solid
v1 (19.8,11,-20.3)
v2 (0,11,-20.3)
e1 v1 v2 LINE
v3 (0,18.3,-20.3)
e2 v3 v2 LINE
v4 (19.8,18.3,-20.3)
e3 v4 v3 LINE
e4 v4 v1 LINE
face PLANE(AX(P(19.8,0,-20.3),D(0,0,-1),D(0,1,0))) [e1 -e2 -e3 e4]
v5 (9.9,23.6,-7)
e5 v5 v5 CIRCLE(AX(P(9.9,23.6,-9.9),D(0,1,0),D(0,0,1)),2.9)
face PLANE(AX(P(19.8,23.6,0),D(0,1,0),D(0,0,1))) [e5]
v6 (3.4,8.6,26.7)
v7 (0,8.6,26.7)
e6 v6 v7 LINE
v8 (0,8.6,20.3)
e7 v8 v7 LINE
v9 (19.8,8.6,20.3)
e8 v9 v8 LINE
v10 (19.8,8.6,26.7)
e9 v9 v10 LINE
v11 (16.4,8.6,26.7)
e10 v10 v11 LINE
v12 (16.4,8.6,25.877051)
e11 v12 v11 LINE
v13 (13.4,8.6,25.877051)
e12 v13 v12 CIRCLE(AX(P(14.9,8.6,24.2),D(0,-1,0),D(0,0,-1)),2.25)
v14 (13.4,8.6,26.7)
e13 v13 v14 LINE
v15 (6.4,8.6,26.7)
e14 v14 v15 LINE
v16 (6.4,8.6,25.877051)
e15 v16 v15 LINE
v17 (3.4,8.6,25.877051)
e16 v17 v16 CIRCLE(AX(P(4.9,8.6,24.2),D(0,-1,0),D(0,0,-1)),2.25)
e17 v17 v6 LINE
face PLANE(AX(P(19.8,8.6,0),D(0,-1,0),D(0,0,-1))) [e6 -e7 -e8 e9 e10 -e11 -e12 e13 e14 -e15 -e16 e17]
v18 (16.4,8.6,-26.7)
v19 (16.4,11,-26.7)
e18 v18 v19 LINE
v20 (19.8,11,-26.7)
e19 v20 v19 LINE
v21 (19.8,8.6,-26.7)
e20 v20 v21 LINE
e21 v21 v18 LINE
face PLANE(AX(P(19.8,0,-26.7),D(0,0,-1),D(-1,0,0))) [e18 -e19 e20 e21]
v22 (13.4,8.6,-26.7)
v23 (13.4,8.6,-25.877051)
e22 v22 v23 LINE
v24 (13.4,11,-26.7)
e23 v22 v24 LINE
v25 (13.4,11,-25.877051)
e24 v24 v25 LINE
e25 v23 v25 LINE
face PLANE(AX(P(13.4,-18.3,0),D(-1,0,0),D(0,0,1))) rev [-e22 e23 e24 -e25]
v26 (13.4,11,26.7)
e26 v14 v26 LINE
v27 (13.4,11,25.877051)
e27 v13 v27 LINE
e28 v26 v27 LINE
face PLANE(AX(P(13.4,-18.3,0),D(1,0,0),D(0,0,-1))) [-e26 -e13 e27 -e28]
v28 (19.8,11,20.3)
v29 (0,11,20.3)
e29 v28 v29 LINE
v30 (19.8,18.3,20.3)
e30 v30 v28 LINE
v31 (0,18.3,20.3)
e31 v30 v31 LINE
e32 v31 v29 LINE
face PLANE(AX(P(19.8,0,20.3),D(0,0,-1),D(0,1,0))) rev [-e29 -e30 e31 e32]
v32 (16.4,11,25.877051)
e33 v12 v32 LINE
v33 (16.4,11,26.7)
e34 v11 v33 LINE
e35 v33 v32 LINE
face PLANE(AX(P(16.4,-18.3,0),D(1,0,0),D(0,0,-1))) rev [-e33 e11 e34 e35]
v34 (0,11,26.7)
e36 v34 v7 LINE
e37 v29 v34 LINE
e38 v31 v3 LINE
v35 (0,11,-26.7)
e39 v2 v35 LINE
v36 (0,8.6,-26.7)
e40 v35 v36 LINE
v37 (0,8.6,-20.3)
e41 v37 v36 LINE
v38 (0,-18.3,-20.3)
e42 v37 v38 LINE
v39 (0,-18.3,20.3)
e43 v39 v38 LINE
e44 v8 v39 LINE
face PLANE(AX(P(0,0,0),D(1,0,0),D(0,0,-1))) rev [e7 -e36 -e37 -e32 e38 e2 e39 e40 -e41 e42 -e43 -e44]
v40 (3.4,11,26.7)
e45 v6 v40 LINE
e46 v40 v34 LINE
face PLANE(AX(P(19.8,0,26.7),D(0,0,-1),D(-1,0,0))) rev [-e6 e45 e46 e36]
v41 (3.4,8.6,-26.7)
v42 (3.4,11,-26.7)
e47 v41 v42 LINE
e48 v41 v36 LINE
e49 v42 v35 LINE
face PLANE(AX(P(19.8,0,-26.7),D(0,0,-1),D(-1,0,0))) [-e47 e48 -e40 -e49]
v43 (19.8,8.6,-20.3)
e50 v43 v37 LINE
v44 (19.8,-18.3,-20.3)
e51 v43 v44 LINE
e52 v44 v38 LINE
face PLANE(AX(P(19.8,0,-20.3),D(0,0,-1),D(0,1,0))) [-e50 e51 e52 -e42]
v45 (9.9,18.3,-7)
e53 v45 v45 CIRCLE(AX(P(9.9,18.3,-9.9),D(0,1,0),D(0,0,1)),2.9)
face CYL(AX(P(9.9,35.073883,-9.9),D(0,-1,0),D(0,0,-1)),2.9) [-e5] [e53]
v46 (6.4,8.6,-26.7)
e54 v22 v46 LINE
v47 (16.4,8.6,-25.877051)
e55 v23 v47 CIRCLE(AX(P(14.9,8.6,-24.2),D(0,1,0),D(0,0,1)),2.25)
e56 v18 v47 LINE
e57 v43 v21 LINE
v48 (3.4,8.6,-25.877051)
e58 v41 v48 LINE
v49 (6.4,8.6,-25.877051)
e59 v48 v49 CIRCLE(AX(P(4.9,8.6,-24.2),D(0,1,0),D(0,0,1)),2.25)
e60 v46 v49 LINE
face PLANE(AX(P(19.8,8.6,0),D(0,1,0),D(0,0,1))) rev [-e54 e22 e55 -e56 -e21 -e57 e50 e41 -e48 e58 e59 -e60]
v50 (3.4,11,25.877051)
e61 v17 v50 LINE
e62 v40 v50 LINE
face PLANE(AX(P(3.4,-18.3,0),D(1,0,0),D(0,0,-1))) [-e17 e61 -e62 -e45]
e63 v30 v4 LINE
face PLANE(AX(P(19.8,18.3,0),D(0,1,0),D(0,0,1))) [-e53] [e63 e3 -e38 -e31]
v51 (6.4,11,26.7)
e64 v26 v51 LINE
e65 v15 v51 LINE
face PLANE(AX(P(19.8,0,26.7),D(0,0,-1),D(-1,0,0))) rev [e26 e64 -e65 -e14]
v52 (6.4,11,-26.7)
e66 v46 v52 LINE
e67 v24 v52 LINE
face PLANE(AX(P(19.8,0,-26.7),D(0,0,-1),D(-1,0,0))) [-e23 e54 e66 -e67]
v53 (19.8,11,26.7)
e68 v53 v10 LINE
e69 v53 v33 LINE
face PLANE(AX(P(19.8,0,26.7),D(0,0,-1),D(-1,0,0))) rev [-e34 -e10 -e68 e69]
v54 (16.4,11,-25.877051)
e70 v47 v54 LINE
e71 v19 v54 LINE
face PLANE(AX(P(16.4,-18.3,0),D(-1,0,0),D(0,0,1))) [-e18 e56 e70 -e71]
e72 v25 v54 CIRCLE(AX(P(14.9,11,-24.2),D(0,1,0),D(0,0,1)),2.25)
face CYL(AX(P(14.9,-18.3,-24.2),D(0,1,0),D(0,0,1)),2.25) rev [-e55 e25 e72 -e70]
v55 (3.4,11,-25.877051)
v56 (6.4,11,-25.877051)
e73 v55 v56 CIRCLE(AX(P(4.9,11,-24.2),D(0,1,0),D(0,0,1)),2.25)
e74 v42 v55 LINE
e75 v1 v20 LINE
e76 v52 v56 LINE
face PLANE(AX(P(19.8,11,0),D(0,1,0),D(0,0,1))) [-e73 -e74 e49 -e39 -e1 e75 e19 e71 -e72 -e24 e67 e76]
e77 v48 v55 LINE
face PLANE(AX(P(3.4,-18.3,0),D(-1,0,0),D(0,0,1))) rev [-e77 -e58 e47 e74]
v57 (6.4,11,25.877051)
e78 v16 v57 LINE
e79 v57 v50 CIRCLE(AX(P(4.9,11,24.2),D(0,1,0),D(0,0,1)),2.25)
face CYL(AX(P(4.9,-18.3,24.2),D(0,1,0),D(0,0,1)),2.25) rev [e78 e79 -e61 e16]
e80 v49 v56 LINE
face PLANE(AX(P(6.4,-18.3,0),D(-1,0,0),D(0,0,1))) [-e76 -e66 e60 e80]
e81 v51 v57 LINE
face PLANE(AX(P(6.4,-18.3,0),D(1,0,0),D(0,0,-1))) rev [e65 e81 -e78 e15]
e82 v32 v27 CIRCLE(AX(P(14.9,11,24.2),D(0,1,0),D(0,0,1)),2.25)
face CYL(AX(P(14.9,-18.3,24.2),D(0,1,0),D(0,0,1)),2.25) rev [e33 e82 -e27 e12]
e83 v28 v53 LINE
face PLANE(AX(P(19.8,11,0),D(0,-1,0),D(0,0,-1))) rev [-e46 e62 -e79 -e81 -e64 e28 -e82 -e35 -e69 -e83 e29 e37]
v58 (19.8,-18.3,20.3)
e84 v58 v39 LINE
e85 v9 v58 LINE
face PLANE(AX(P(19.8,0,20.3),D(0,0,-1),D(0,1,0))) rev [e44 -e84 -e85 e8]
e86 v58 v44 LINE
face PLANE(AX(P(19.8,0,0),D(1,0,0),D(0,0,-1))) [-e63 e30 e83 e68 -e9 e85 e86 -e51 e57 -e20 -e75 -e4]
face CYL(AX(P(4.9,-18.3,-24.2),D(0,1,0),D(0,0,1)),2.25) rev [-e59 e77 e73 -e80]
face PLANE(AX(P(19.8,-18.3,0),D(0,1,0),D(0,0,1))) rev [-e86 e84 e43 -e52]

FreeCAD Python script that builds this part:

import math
import FreeCAD as App
import Part
import Sketcher
from FreeCAD import Vector


def add_polygon(sketch, points):
    """Adds a closed chain of lines whose ends are joined by coincident constraints."""
    first, n = sketch.GeometryCount, len(points)
    for a, b in zip(points, points[1:] + points[:1]):
        sketch.addGeometry(Part.LineSegment(App.Vector(*a, 0), App.Vector(*b, 0)), False)
    for i in range(n):
        sketch.addConstraint(Sketcher.Constraint("Coincident", first + i, 2, first + (i + 1) % n, 1))

doc = App.newDocument("Part")
body = doc.addObject("PartDesign::Body", "Body")

sketch1 = body.newObject("Sketcher::SketchObject", "Sketch")
sketch1.AttachmentSupport = (doc.getObject("YZ_Plane"), [""])
sketch1.MapMode = "FlatFace"
add_polygon(sketch1, [(8.6, 20.3), (-18.3, 20.3), (-18.3, -20.3), (8.6, -20.3), (8.6, -26.7), (11, -26.7), (11, -20.3), (18.3, -20.3), (18.3, -12.8), (23.6, -12.8), (23.6, -7), (18.3, -7), (18.3, 20.3), (11, 20.3), (11, 26.7), (8.6, 26.7)])
sketch1.addConstraint([
    Sketcher.Constraint("Horizontal", 0),
    Sketcher.Constraint("Vertical", 1),
    Sketcher.Constraint("Horizontal", 2),
    Sketcher.Constraint("Vertical", 3),
    Sketcher.Constraint("Horizontal", 4),
    Sketcher.Constraint("Vertical", 5),
    Sketcher.Constraint("Horizontal", 6),
    Sketcher.Constraint("Vertical", 7),
    Sketcher.Constraint("Horizontal", 8),
    Sketcher.Constraint("Vertical", 9),
    Sketcher.Constraint("Horizontal", 10),
    Sketcher.Constraint("Vertical", 11),
    Sketcher.Constraint("Horizontal", 12),
    Sketcher.Constraint("Vertical", 13),
    Sketcher.Constraint("Horizontal", 14),
    Sketcher.Constraint("Vertical", 15),
    Sketcher.Constraint("Symmetric", 0, 2, 6, 2, -1, 1),
    Sketcher.Constraint("Symmetric", 1, 2, 11, 2, -1, 1),
    Sketcher.Constraint("Symmetric", 5, 2, 12, 2, -1),
    Sketcher.Constraint("Symmetric", 3, 2, 14, 2, -1),
    Sketcher.Constraint("DistanceX", 0, 2, 0, 1, 26.9),
    Sketcher.Constraint("DistanceX", 4, 1, 4, 2, 2.4),
    Sketcher.Constraint("DistanceX", 6, 1, 6, 2, 7.3),
    Sketcher.Constraint("DistanceX", 8, 1, 8, 2, 5.3),
    Sketcher.Constraint("DistanceY", 1, 2, 1, 1, 40.6),
    Sketcher.Constraint("DistanceY", 3, 2, 3, 1, 6.4),
    Sketcher.Constraint("DistanceY", 7, 1, 7, 2, 7.5),
    Sketcher.Constraint("DistanceY", 9, 1, 9, 2, 5.8),
])
pad1 = body.newObject("PartDesign::Pad", "Pad")
pad1.Profile = sketch1
pad1.Length = 19.8

sketch2 = body.newObject("Sketcher::SketchObject", "Sketch001")
sketch2.AttachmentSupport = (doc.getObject("XZ_Plane"), [""])
sketch2.MapMode = "FlatFace"
sketch2.AttachmentOffset = App.Placement(Vector(0, 0, -18.3), App.Rotation())
sketch2.addGeometry([
    Part.LineSegment(Vector(9.9, -7, 0), Vector(19.8, -7, 0)),
    Part.LineSegment(Vector(19.8, -7, 0), Vector(19.8, -12.8, 0)),
    Part.LineSegment(Vector(19.8, -12.8, 0), Vector(9.9, -12.8, 0)),
    Part.ArcOfCircle(Part.Circle(Vector(9.9, -9.9, 0), Vector(0, 0, 1), 2.9), math.radians(-90), math.radians(0)),
    Part.ArcOfCircle(Part.Circle(Vector(9.9, -9.9, 0), Vector(0, 0, 1), 2.9), math.radians(0), math.radians(90)),
    Part.ArcOfCircle(Part.Circle(Vector(9.9, -9.9, 0), Vector(0, 0, 1), 2.9), math.radians(-180), math.radians(-90)),
    Part.LineSegment(Vector(9.9, -12.8, 0), Vector(0, -12.8, 0)),
    Part.LineSegment(Vector(0, -12.8, 0), Vector(0, -7, 0)),
    Part.LineSegment(Vector(0, -7, 0), Vector(9.9, -7, 0)),
    Part.ArcOfCircle(Part.Circle(Vector(9.9, -9.9, 0), Vector(0, 0, 1), 2.9), math.radians(90), math.radians(180)),
], False)
sketch2.addConstraint([
    Sketcher.Constraint("Coincident", 0, 2, 1, 1),
    Sketcher.Constraint("Coincident", 1, 2, 2, 1),
    Sketcher.Constraint("Tangent", 2, 2, 3, 1),
    Sketcher.Constraint("Tangent", 3, 2, 4, 1),
    Sketcher.Constraint("Tangent", 4, 2, 0, 1),
    Sketcher.Constraint("Tangent", 5, 2, 6, 1),
    Sketcher.Constraint("Coincident", 6, 2, 7, 1),
    Sketcher.Constraint("Coincident", 7, 2, 8, 1),
    Sketcher.Constraint("Tangent", 8, 2, 9, 1),
    Sketcher.Constraint("Tangent", 9, 2, 5, 1),
    Sketcher.Constraint("Horizontal", 0),
    Sketcher.Constraint("Vertical", 1),
    Sketcher.Constraint("Horizontal", 2),
    Sketcher.Constraint("Horizontal", 6),
    Sketcher.Constraint("Vertical", 7),
    Sketcher.Constraint("Horizontal", 8),
    Sketcher.Constraint("Coincident", 5, 3, 3, 3),
    Sketcher.Constraint("Coincident", 8, 2, 4, 2),
    Sketcher.Constraint("Equal", 3, 4),
    Sketcher.Constraint("PointOnObject", 6, 2, -2),
    Sketcher.Constraint("Horizontal", 9, 3, 3, 2),
    Sketcher.Constraint("Horizontal", 3, 2, 9, 2),
    Sketcher.Constraint("Equal", 2, 6),
    Sketcher.Constraint("Radius", 3, 2.9),
    Sketcher.Constraint("DistanceX", 0, 1, 0, 2, 9.9),
    Sketcher.Constraint("DistanceY", 0, 2, -1, 1, 7.0),
])
pocket1 = body.newObject("PartDesign::Pocket", "Pocket")
pocket1.Profile = sketch2
pocket1.Length = 5.3

sketch3 = body.newObject("Sketcher::SketchObject", "Sketch002")
sketch3.AttachmentSupport = (doc.getObject("XZ_Plane"), [""])
sketch3.MapMode = "FlatFace"
sketch3.AttachmentOffset = App.Placement(Vector(0, 0, -11), App.Rotation())
sketch3.addGeometry([
    Part.ArcOfCircle(Part.Circle(Vector(14.9, -24.2, 0), Vector(0, 0, 1), 2.2), math.radians(0), math.radians(228)),
    Part.ArcOfCircle(Part.Circle(Vector(14.9, -24.2, 0), Vector(0, 0, 1), 2.2), math.radians(-48), math.radians(0)),
    Part.LineSegment(Vector(16.4, -25.9, 0), Vector(16.4, -26.7, 0)),
    Part.LineSegment(Vector(16.4, -26.7, 0), Vector(13.4, -26.7, 0)),
    Part.LineSegment(Vector(13.4, -26.7, 0), Vector(13.4, -25.9, 0)),
    Part.ArcOfCircle(Part.Circle(Vector(4.9, -24.2, 0), Vector(0, 0, 1), 2.2), math.radians(-48), math.radians(0)),
    Part.LineSegment(Vector(6.4, -25.9, 0), Vector(6.4, -26.7, 0)),
    Part.LineSegment(Vector(6.4, -26.7, 0), Vector(3.4, -26.7, 0)),
    Part.LineSegment(Vector(3.4, -26.7, 0), Vector(3.4, -25.9, 0)),
    Part.ArcOfCircle(Part.Circle(Vector(4.9, -24.2, 0), Vector(0, 0, 1), 2.2), math.radians(0), math.radians(228)),
    Part.ArcOfCircle(Part.Circle(Vector(14.9, 24.2, 0), Vector(0, 0, 1), 2.2), math.radians(0), math.radians(48)),
    Part.ArcOfCircle(Part.Circle(Vector(14.9, 24.2, 0), Vector(0, 0, 1), 2.2), math.radians(132), math.radians(360)),
    Part.LineSegment(Vector(13.4, 25.9, 0), Vector(13.4, 26.7, 0)),
    Part.LineSegment(Vector(13.4, 26.7, 0), Vector(16.4, 26.7, 0)),
    Part.LineSegment(Vector(16.4, 26.7, 0), Vector(16.4, 25.9, 0)),
    Part.ArcOfCircle(Part.Circle(Vector(4.9, 24.2, 0), Vector(0, 0, 1), 2.2), math.radians(0), math.radians(48)),
    Part.ArcOfCircle(Part.Circle(Vector(4.9, 24.2, 0), Vector(0, 0, 1), 2.2), math.radians(132), math.radians(360)),
    Part.LineSegment(Vector(3.4, 25.9, 0), Vector(3.4, 26.7, 0)),
    Part.LineSegment(Vector(3.4, 26.7, 0), Vector(6.4, 26.7, 0)),
    Part.LineSegment(Vector(6.4, 26.7, 0), Vector(6.4, 25.9, 0)),
], False)
sketch3.addConstraint([
    Sketcher.Constraint("Tangent", 0, 1, 1, 2),
    Sketcher.Constraint("Coincident", 1, 1, 2, 1),
    Sketcher.Constraint("Coincident", 2, 2, 3, 1),
    Sketcher.Constraint("Coincident", 3, 2, 4, 1),
    Sketcher.Constraint("Coincident", 4, 2, 0, 2),
    Sketcher.Constraint("Coincident", 5, 1, 6, 1),
    Sketcher.Constraint("Coincident", 6, 2, 7, 1),
    Sketcher.Constraint("Coincident", 7, 2, 8, 1),
    Sketcher.Constraint("Coincident", 8, 2, 9, 2),
    Sketcher.Constraint("Tangent", 9, 1, 5, 2),
    Sketcher.Constraint("Tangent", 10, 1, 11, 2),
    Sketcher.Constraint("Coincident", 11, 1, 12, 1),
    Sketcher.Constraint("Coincident", 12, 2, 13, 1),
    Sketcher.Constraint("Coincident", 13, 2, 14, 1),
    Sketcher.Constraint("Coincident", 14, 2, 10, 2),
    Sketcher.Constraint("Tangent", 15, 1, 16, 2),
    Sketcher.Constraint("Coincident", 16, 1, 17, 1),
    Sketcher.Constraint("Coincident", 17, 2, 18, 1),
    Sketcher.Constraint("Coincident", 18, 2, 19, 1),
    Sketcher.Constraint("Coincident", 19, 2, 15, 2),
    Sketcher.Constraint("Vertical", 2),
    Sketcher.Constraint("Horizontal", 3),
    Sketcher.Constraint("Vertical", 4),
    Sketcher.Constraint("Vertical", 6),
    Sketcher.Constraint("Horizontal", 7),
    Sketcher.Constraint("Vertical", 8),
    Sketcher.Constraint("Vertical", 12),
    Sketcher.Constraint("Horizontal", 13),
    Sketcher.Constraint("Vertical", 14),
    Sketcher.Constraint("Vertical", 17),
    Sketcher.Constraint("Horizontal", 18),
    Sketcher.Constraint("Vertical", 19),
    Sketcher.Constraint("Equal", 0, 1),
    Sketcher.Constraint("Equal", 1, 5),
    Sketcher.Constraint("Equal", 5, 9),
    Sketcher.Constraint("Equal", 9, 10),
    Sketcher.Constraint("Equal", 10, 11),
    Sketcher.Constraint("Equal", 11, 15),
    Sketcher.Constraint("Equal", 15, 16),
    Sketcher.Constraint("Symmetric", 0, 3, 10, 3, -1),
    Sketcher.Constraint("Symmetric", 5, 3, 15, 3, -1),
    Sketcher.Constraint("Symmetric", 3, 2, 12, 2, -1),
    Sketcher.Constraint("Symmetric", 7, 2, 17, 2, -1),
    Sketcher.Constraint("Horizontal", 1, 3, 5, 3),
    Sketcher.Constraint("Horizontal", 9, 3, 0, 1),
    Sketcher.Constraint("Horizontal", 1, 1, 4, 2),
    Sketcher.Constraint("Horizontal", 4, 2, 5, 1),
    Sketcher.Constraint("Horizontal", 3, 2, 6, 2),
    Sketcher.Constraint("Horizontal", 5, 1, 8, 2),
    Sketcher.Constraint("Horizontal", 0, 1, 9, 1),
    Sketcher.Constraint("Horizontal", 16, 3, 10, 1),
    Sketcher.Constraint("Horizontal", 11, 1, 14, 2),
    Sketcher.Constraint("Horizontal", 10, 1, 15, 1),
    Sketcher.Constraint("Horizontal", 16, 1, 19, 2),
    Sketcher.Constraint("DistanceX", 3, 2, 3, 1, 3.0),
    Sketcher.Constraint("Radius", 0, 2.25),
    Sketcher.Constraint("DistanceX", 5, 3, 0, 3, 10.0),
    Sketcher.Constraint("DistanceX", -1, 1, 0, 3, 14.9),
    Sketcher.Constraint("DistanceY", 0, 3, -1, 1, 24.2),
    Sketcher.Constraint("DistanceY", 2, 2, -1, 1, 26.7),
])
pocket2 = body.newObject("PartDesign::Pocket", "Pocket001")
pocket2.Profile = sketch3
pocket2.Type = "ThroughAll"
pocket2.Reversed = True

doc.recompute()
